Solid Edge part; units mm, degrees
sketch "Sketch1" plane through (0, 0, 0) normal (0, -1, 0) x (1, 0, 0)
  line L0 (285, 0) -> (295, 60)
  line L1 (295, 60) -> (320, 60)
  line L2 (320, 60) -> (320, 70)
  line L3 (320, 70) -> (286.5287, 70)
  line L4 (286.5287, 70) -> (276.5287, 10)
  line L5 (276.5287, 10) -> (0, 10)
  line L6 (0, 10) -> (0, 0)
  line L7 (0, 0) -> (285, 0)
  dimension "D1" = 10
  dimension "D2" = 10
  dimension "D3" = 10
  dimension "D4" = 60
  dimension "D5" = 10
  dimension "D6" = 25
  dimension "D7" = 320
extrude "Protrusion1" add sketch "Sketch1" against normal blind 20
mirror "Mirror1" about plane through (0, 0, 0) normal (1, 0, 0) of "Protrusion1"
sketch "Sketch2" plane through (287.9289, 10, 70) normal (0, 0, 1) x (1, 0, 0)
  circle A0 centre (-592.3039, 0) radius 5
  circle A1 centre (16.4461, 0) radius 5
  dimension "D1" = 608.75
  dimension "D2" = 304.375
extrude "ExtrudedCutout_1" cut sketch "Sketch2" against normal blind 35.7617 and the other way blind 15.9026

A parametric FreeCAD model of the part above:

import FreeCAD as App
import Part
import Sketcher

V = App.Vector


def add_polygon(sketch, points):
    """Adds a closed chain of lines whose ends are joined by coincident constraints."""
    first, n = sketch.GeometryCount, len(points)
    for a, b in zip(points, points[1:] + points[:1]):
        sketch.addGeometry(Part.LineSegment(App.Vector(*a, 0), App.Vector(*b, 0)), False)
    for i in range(n):
        sketch.addConstraint(Sketcher.Constraint("Coincident", first + i, 2, first + (i + 1) % n, 1))

doc = App.newDocument("Part")
body = doc.addObject("PartDesign::Body", "Body")

# Sketch on XZ plane
sketch1 = body.newObject("Sketcher::SketchObject", "Sketch")
sketch1.AttachmentSupport = (doc.getObject("XZ_Plane"), [""])
sketch1.MapMode = "FlatFace"
add_polygon(sketch1, [(0, 0), (285, 0), (295, 60), (320, 60), (320, 70), (287, 70), (277, 10), (0, 10)])  # lines 0-7
sketch1.addConstraint([
    Sketcher.Constraint("Horizontal", 0),
    Sketcher.Constraint("Horizontal", 2),
    Sketcher.Constraint("Vertical", 3),
    Sketcher.Constraint("Horizontal", 4),
    Sketcher.Constraint("Horizontal", 6),
    Sketcher.Constraint("Vertical", 7),
    Sketcher.Constraint("Coincident", 7, 2, -1, 1),
    Sketcher.Constraint("Parallel", 1, 5),
    Sketcher.Constraint("Equal", 3, 7),
    Sketcher.Constraint("DistanceX", -1, 1, 1, 2, 295.0),
    Sketcher.Constraint("DistanceX", -1, 1, 2, 2, 320.0),
    Sketcher.Constraint("DistanceX", 0, 1, 0, 2, 285.0),
    Sketcher.Constraint("DistanceY", 3, 1, 3, 2, 10.0),
    Sketcher.Constraint("DistanceY", -1, 1, 1, 2, 60.0),
    Sketcher.Constraint("DistanceX", 4, 2, 4, 1, 33.4713),
])
pad1 = body.newObject("PartDesign::Pad", "Pad")
pad1.Profile = sketch1
pad1.Length = 20
pad1.Reversed = True
doc.recompute()

mirrored = body.newObject("PartDesign::Mirrored", "Mirrored")
mirrored.Originals = [pad1]
mirrored.MirrorPlane = (doc.getObject("YZ_Plane"), [""])
body.Tip = mirrored

# Sketch on XY plane
sketch2 = body.newObject("Sketcher::SketchObject", "Sketch001")
sketch2.AttachmentSupport = (doc.getObject("XY_Plane"), [""])
sketch2.MapMode = "FlatFace"
sketch2.AttachmentOffset = App.Placement(V(0, 0, 70), App.Rotation())
sketch2.addGeometry([
    Part.Circle(V(-304, 10, 0), V(0, 0, 1), 5),
    Part.Circle(V(304, 10, 0), V(0, 0, 1), 5),
], False)
sketch2.addConstraint([
    Sketcher.Constraint("Equal", 0, 1),
    Sketcher.Constraint("Symmetric", 0, 3, 1, 3, -2),
    Sketcher.Constraint("Diameter", 0, 10.0),
    Sketcher.Constraint("DistanceY", -1, 1, 0, 3, 10.0),
    Sketcher.Constraint("DistanceX", 0, 3, 1, 3, 608.75),
])
pocket1 = body.newObject("PartDesign::Pocket", "Pocket")
pocket1.Profile = sketch2
pocket1.Type = "ThroughAll"
pocket1.Midplane = True

doc.recompute()
